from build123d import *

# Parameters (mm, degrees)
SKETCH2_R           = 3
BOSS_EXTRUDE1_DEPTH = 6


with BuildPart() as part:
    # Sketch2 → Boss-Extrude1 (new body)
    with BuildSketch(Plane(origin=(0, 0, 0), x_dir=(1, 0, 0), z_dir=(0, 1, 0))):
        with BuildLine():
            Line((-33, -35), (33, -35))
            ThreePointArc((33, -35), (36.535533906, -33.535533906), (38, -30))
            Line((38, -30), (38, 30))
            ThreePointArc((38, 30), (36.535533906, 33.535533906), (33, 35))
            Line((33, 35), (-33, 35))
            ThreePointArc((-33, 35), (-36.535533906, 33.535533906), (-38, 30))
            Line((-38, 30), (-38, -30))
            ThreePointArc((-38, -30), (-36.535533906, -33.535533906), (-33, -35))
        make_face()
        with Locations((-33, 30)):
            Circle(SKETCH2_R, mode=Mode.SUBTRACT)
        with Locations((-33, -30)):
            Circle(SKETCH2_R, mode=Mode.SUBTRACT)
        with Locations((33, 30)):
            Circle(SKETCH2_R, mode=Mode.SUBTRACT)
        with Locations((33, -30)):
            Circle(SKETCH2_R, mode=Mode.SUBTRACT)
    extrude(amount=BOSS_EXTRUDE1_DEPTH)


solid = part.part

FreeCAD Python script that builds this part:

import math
import FreeCAD as App
import Part
import Sketcher

V = App.Vector
Q = App.Units.Quantity

doc = App.newDocument("Part")
body = doc.addObject("PartDesign::Body", "Body")

# Sketch on XZ plane
sketch1 = body.newObject("Sketcher::SketchObject", "Sketch")
sketch1.AttachmentSupport = (doc.getObject("XZ_Plane"), [""])
sketch1.MapMode = "FlatFace"
sketch1.addGeometry([
    Part.LineSegment(V(-33, 35, 0), V(33, 35, 0)),  # 0
    Part.ArcOfCircle(Part.Circle(V(33, 30, 0), V(0, 0, 1), 5), math.radians(0), math.radians(90)),  # 1
    Part.LineSegment(V(38, 30, 0), V(38, -30, 0)),  # 2
    Part.ArcOfCircle(Part.Circle(V(33, -30, 0), V(0, 0, 1), 5), math.radians(-90), math.radians(0)),  # 3
    Part.LineSegment(V(33, -35, 0), V(-33, -35, 0)),  # 4
    Part.ArcOfCircle(Part.Circle(V(-33, -30, 0), V(0, 0, 1), 5), math.radians(180), math.radians(270)),  # 5
    Part.LineSegment(V(-38, -30, 0), V(-38, 30, 0)),  # 6
    Part.ArcOfCircle(Part.Circle(V(-33, 30, 0), V(0, 0, 1), 5), math.radians(90), math.radians(180)),  # 7
    Part.Circle(V(-33, 30, 0), V(0, 0, 1), 3),  # 8
    Part.Circle(V(33, 30, 0), V(0, 0, 1), 3),  # 9
    Part.Circle(V(-33, -30, 0), V(0, 0, 1), 3),  # 10
    Part.Circle(V(33, -30, 0), V(0, 0, 1), 3),  # 11
], False)
sketch1.addConstraint([
    Sketcher.Constraint("Tangent", 0, 2, 1, 2),
    Sketcher.Constraint("Tangent", 1, 1, 2, 1),
    Sketcher.Constraint("Tangent", 2, 2, 3, 2),
    Sketcher.Constraint("Tangent", 3, 1, 4, 1),
    Sketcher.Constraint("Tangent", 4, 2, 5, 2),
    Sketcher.Constraint("Tangent", 5, 1, 6, 1),
    Sketcher.Constraint("Tangent", 6, 2, 7, 2),
    Sketcher.Constraint("Tangent", 7, 1, 0, 1),
    Sketcher.Constraint("Horizontal", 0),
    Sketcher.Constraint("Vertical", 2),
    Sketcher.Constraint("Horizontal", 4),
    Sketcher.Constraint("Vertical", 6),
    Sketcher.Constraint("Coincident", 8, 3, 7, 3),
    Sketcher.Constraint("Coincident", 9, 3, 1, 3),
    Sketcher.Constraint("Coincident", 10, 3, 5, 3),
    Sketcher.Constraint("Coincident", 11, 3, 3, 3),
    Sketcher.Constraint("Equal", 1, 3),
    Sketcher.Constraint("Equal", 3, 5),
    Sketcher.Constraint("Equal", 5, 7),
    Sketcher.Constraint("Equal", 8, 9),
    Sketcher.Constraint("Equal", 9, 10),
    Sketcher.Constraint("Equal", 10, 11),
    Sketcher.Constraint("Symmetric", 1, 3, 5, 3, -1, 1),
    Sketcher.Constraint("Diameter", 8, Q("6 mm")),
    Sketcher.Constraint("Radius", 1, Q("5 mm")),
    Sketcher.Constraint("DistanceX", 0, 1, 0, 2, Q("66 mm")),
    Sketcher.Constraint("DistanceY", 2, 2, 2, 1, Q("60 mm")),
])
pad1 = body.newObject("PartDesign::Pad", "Pad")
pad1.Profile = sketch1
pad1.Length = 6
pad1.Reversed = True

doc.recompute()
